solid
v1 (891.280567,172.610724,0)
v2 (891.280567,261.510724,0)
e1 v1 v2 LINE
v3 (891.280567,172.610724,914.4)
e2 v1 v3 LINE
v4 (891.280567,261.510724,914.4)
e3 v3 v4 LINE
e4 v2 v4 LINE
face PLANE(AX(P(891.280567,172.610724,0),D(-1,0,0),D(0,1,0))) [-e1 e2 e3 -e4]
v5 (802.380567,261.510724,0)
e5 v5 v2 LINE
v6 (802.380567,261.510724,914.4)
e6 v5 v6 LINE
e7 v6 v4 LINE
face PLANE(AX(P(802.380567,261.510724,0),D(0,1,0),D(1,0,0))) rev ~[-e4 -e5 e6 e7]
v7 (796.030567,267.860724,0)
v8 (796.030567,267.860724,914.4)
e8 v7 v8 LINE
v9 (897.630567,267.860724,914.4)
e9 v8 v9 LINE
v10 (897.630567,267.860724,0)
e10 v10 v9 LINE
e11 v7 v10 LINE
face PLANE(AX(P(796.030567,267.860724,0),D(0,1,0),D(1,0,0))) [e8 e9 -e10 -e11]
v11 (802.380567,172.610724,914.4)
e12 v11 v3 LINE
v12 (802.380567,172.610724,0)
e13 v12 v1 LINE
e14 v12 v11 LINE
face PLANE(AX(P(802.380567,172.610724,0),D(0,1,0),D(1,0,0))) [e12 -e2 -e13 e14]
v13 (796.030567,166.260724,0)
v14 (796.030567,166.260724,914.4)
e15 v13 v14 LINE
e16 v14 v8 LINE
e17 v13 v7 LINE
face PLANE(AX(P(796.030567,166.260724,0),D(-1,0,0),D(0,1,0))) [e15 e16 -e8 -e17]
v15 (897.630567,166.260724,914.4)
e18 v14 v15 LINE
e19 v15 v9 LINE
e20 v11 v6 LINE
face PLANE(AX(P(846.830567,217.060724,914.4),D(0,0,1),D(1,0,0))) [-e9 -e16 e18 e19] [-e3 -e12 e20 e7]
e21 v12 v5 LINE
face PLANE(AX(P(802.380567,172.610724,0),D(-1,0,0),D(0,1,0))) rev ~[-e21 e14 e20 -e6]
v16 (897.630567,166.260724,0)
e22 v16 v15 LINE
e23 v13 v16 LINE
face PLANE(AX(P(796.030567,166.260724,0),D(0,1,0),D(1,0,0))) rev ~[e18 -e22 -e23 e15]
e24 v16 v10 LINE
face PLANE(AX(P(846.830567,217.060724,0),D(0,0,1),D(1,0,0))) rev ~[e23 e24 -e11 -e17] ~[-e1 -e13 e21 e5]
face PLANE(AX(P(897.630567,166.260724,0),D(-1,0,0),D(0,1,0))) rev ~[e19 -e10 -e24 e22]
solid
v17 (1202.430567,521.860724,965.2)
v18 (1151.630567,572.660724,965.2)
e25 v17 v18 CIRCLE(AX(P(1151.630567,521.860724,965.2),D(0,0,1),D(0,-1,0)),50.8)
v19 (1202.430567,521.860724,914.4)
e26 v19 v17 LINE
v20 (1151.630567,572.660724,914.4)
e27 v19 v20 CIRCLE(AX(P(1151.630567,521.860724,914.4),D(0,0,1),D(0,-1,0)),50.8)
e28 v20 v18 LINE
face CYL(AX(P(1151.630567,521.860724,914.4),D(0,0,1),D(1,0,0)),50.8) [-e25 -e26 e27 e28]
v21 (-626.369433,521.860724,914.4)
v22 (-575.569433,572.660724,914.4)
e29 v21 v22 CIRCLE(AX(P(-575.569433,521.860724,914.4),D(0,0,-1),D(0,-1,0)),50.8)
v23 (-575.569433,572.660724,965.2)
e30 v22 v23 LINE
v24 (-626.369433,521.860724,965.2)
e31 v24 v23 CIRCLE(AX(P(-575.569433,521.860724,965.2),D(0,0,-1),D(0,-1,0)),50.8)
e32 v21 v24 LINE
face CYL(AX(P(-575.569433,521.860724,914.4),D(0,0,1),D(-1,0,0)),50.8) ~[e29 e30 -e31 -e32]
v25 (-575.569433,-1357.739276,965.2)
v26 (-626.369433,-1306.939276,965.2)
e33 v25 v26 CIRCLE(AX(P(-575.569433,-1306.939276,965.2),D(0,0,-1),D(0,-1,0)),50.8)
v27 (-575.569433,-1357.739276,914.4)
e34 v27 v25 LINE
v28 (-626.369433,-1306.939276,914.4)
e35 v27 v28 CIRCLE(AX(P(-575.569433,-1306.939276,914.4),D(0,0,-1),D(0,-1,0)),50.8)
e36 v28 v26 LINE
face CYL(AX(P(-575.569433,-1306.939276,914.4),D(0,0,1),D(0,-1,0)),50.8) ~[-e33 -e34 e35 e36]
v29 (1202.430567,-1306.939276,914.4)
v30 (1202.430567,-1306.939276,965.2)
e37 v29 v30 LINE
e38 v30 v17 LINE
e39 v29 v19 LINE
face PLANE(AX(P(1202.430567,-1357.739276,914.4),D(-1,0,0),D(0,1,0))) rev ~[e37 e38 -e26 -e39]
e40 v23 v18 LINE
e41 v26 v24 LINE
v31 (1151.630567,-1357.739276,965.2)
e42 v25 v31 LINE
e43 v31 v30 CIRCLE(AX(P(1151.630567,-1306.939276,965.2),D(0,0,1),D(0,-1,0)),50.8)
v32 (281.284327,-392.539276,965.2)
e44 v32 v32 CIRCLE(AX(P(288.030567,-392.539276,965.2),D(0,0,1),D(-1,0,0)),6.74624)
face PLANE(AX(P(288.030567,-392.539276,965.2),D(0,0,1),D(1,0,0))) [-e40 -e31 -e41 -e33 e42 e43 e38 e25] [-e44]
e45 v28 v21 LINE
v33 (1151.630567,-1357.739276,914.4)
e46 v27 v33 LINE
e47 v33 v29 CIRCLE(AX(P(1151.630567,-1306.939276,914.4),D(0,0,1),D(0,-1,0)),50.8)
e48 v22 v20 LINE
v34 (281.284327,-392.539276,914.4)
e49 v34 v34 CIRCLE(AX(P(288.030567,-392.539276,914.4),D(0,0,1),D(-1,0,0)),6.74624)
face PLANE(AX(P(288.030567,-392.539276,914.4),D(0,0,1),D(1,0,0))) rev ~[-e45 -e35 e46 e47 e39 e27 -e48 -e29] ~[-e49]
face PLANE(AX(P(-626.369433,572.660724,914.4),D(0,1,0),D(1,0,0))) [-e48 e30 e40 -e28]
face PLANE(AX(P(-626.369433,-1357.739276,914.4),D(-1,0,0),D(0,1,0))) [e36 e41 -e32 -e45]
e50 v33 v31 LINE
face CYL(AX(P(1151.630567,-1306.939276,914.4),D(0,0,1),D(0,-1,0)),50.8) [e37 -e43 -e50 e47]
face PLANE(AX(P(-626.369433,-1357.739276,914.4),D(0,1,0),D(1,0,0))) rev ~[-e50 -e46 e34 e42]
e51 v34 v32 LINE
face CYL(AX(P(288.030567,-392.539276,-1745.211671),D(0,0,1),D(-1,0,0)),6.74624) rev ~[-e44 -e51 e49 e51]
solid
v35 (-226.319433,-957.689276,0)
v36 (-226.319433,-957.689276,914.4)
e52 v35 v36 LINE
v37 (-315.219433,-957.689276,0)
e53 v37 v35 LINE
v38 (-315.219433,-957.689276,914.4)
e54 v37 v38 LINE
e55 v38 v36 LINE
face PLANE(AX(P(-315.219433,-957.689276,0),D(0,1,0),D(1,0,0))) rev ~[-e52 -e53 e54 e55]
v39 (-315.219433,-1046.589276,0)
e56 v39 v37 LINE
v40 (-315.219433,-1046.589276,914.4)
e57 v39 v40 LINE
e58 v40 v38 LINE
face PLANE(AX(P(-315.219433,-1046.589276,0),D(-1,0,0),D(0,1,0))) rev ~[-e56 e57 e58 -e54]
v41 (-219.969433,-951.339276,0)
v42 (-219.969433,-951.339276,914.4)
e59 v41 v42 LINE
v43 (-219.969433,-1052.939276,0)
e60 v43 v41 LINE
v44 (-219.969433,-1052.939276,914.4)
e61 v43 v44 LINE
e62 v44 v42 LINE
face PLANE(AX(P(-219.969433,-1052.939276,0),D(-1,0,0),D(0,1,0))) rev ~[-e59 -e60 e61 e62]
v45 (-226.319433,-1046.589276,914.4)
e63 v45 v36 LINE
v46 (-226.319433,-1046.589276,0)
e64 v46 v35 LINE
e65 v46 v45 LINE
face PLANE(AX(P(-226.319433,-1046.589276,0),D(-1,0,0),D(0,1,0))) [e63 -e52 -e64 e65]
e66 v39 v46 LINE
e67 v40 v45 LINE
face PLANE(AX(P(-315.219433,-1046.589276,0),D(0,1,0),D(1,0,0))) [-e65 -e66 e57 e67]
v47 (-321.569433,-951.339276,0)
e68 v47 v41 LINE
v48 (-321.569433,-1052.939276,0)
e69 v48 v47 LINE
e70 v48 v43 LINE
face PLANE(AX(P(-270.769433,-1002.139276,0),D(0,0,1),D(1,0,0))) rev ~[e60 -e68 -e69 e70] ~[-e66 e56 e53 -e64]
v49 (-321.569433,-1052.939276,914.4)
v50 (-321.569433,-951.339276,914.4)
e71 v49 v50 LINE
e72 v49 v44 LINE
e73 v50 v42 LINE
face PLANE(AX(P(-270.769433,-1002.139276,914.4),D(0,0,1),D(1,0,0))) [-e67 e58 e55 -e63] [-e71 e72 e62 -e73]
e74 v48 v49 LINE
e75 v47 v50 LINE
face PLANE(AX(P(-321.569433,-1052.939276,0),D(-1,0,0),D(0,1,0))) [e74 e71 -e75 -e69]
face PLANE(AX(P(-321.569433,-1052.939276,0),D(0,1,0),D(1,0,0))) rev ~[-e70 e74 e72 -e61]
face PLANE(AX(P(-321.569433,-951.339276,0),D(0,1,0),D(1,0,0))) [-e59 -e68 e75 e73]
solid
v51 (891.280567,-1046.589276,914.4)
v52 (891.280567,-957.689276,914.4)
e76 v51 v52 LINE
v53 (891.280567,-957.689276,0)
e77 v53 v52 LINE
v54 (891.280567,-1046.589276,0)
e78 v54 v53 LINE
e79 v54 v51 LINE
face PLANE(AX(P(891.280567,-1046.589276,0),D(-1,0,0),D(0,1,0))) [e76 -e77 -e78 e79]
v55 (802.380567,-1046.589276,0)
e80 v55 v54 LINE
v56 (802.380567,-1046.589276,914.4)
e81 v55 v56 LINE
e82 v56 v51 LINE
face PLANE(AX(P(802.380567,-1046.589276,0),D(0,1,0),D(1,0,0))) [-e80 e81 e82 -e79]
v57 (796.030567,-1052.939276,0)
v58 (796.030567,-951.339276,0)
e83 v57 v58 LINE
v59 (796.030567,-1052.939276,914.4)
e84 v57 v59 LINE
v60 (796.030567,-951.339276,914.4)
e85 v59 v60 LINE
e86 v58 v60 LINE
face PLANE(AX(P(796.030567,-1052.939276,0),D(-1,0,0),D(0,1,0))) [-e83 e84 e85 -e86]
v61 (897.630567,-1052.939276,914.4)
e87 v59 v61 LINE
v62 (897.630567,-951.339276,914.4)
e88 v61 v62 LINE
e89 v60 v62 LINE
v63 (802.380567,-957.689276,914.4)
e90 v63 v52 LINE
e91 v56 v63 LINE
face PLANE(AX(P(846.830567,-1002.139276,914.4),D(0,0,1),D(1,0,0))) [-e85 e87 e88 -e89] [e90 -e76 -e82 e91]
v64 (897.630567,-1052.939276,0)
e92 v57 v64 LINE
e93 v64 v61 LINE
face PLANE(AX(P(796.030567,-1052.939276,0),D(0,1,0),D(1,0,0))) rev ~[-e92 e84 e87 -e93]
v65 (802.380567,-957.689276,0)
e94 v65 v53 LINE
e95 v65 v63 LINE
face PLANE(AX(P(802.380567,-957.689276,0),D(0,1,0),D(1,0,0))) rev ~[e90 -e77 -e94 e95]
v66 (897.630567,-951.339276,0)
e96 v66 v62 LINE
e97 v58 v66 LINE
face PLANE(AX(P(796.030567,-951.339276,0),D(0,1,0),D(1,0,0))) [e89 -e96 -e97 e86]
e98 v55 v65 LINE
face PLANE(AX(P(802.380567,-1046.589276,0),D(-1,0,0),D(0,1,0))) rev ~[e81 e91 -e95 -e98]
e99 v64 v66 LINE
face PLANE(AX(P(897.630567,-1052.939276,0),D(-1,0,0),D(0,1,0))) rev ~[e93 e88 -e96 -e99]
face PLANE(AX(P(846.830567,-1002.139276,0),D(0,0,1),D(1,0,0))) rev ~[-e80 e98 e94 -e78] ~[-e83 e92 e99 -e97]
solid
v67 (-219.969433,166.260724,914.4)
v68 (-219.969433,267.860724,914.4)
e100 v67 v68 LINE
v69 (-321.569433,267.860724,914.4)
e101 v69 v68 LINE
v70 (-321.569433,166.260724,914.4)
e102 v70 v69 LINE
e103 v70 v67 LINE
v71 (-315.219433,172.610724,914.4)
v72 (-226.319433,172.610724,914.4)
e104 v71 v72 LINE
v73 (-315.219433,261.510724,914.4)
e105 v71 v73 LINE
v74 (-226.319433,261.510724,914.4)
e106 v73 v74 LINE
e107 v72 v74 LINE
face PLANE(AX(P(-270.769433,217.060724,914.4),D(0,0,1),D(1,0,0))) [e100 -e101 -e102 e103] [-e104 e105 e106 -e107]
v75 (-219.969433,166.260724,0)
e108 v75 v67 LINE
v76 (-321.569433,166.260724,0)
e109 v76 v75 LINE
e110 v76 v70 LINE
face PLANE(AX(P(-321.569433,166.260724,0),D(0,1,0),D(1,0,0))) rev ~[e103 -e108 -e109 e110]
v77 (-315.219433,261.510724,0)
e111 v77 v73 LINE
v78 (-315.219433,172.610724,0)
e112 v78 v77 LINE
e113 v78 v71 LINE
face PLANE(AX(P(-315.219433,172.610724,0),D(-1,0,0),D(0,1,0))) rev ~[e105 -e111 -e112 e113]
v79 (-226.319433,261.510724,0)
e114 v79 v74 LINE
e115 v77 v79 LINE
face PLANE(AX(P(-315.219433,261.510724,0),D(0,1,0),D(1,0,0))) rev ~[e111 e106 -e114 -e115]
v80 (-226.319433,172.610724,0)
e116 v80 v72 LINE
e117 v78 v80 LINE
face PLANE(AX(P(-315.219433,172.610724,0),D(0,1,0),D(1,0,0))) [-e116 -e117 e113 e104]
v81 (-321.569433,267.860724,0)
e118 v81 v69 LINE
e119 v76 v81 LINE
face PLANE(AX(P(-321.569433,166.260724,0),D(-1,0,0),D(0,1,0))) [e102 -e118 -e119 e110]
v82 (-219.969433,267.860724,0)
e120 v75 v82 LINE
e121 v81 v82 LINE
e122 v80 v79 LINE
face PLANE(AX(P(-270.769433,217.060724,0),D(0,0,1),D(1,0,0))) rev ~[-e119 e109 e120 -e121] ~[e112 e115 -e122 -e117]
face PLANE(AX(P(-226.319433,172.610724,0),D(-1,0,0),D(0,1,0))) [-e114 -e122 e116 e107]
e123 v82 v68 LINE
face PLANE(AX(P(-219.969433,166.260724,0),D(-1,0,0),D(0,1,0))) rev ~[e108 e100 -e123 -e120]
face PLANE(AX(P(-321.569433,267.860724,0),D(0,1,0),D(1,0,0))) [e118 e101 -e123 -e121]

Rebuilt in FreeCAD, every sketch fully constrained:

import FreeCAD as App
import Part
import Sketcher
Q = App.Units.Quantity


def edges_at(feature, points):
    """Names of the edges that pass closest to the given points."""
    edges = feature.Shape.Edges
    near = lambda p: min(range(len(edges)), key=lambda i: edges[i].distToShape(Part.Vertex(*p))[0])
    return sorted({f"Edge{near(p) + 1}" for p in points})


def add_polygon(sketch, points):
    """Adds a closed chain of lines whose ends are joined by coincident constraints."""
    first, n = sketch.GeometryCount, len(points)
    for a, b in zip(points, points[1:] + points[:1]):
        sketch.addGeometry(Part.LineSegment(App.Vector(*a, 0), App.Vector(*b, 0)), False)
    for i in range(n):
        sketch.addConstraint(Sketcher.Constraint("Coincident", first + i, 2, first + (i + 1) % n, 1))

doc = App.newDocument("Part")
body = doc.addObject("PartDesign::Body", "Body")

# Sketch on XY plane
sketch1 = body.newObject("Sketcher::SketchObject", "Sketch")
sketch1.AttachmentSupport = (doc.getObject("XY_Plane"), [""])
sketch1.MapMode = "FlatFace"
add_polygon(sketch1, [(-322, 268), (-322, 166), (-220, 166), (-220, 268)])  # lines 0-3
add_polygon(sketch1, [(-226, 173), (-315, 173), (-315, 262), (-226, 262)])  # lines 4-7
sketch1.addConstraint(Sketcher.Constraint("Vertical", 0))
sketch1.addConstraint(Sketcher.Constraint("Horizontal", 1))
sketch1.addConstraint(Sketcher.Constraint("Vertical", 2))
sketch1.addConstraint(Sketcher.Constraint("Horizontal", 3))
sketch1.addConstraint(Sketcher.Constraint("Horizontal", 4))
sketch1.addConstraint(Sketcher.Constraint("Vertical", 5))
sketch1.addConstraint(Sketcher.Constraint("Horizontal", 6))
sketch1.addConstraint(Sketcher.Constraint("Vertical", 7))
sketch1.addConstraint(Sketcher.Constraint("Equal", 3, 0))
sketch1.addConstraint(Sketcher.Constraint("Equal", 6, 5))
sketch1.addConstraint(Sketcher.Constraint("DistanceX", 1, 1, 1, 2, Q("4 in")))
sketch1.addConstraint(Sketcher.Constraint("DistanceX", 4, 2, 4, 1, Q("3.5 in")))
sketch1.addConstraint(Sketcher.Constraint("DistanceX", 0, 2, 4, 2, Q("0.25 in")))
sketch1.addConstraint(Sketcher.Constraint("DistanceY", 0, 2, 4, 2, Q("0.25 in")))
sketch1.addConstraint(Sketcher.Constraint("DistanceX", 0, 2, -1, 1, 321.569433))
sketch1.addConstraint(Sketcher.Constraint("DistanceY", -1, 1, 0, 2, 166.260724))
pad1 = body.newObject("PartDesign::Pad", "Pad")
pad1.Profile = sketch1
pad1.Length = Q("36 in")
body2 = doc.addObject("PartDesign::Body", "Body001")

# Sketch on XY plane
sketch2 = body2.newObject("Sketcher::SketchObject", "Sketch001")
sketch2.AttachmentSupport = (doc.getObject("XY_Plane001"), [""])
sketch2.MapMode = "FlatFace"
add_polygon(sketch2, [(796, 268), (796, 166), (898, 166), (898, 268)])  # lines 0-3
add_polygon(sketch2, [(891, 173), (802, 173), (802, 262), (891, 262)])  # lines 4-7
sketch2.addConstraint(Sketcher.Constraint("Vertical", 0))
sketch2.addConstraint(Sketcher.Constraint("Horizontal", 1))
sketch2.addConstraint(Sketcher.Constraint("Vertical", 2))
sketch2.addConstraint(Sketcher.Constraint("Horizontal", 3))
sketch2.addConstraint(Sketcher.Constraint("Horizontal", 4))
sketch2.addConstraint(Sketcher.Constraint("Vertical", 5))
sketch2.addConstraint(Sketcher.Constraint("Horizontal", 6))
sketch2.addConstraint(Sketcher.Constraint("Vertical", 7))
sketch2.addConstraint(Sketcher.Constraint("Equal", 3, 0))
sketch2.addConstraint(Sketcher.Constraint("Equal", 6, 5))
sketch2.addConstraint(Sketcher.Constraint("DistanceX", 1, 1, 1, 2, Q("4 in")))
sketch2.addConstraint(Sketcher.Constraint("DistanceX", 4, 2, 4, 1, Q("3.5 in")))
sketch2.addConstraint(Sketcher.Constraint("DistanceX", 0, 2, 4, 2, Q("0.25 in")))
sketch2.addConstraint(Sketcher.Constraint("DistanceY", 0, 2, 4, 2, Q("0.25 in")))
sketch2.addConstraint(Sketcher.Constraint("DistanceX", -1, 1, 0, 2, 796.030567))
sketch2.addConstraint(Sketcher.Constraint("DistanceY", -1, 1, 0, 2, 166.260724))
pad2 = body2.newObject("PartDesign::Pad", "Pad001")
pad2.Profile = sketch2
pad2.Length = Q("36 in")
body3 = doc.addObject("PartDesign::Body", "Body002")

# Sketch on XY plane
sketch3 = body3.newObject("Sketcher::SketchObject", "Sketch002")
sketch3.AttachmentSupport = (doc.getObject("XY_Plane002"), [""])
sketch3.MapMode = "FlatFace"
add_polygon(sketch3, [(-322, -951), (-322, -1053), (-220, -1053), (-220, -951)])  # lines 0-3
add_polygon(sketch3, [(-226, -1047), (-315, -1047), (-315, -958), (-226, -958)])  # lines 4-7
sketch3.addConstraint(Sketcher.Constraint("Vertical", 0))
sketch3.addConstraint(Sketcher.Constraint("Horizontal", 1))
sketch3.addConstraint(Sketcher.Constraint("Vertical", 2))
sketch3.addConstraint(Sketcher.Constraint("Horizontal", 3))
sketch3.addConstraint(Sketcher.Constraint("Horizontal", 4))
sketch3.addConstraint(Sketcher.Constraint("Vertical", 5))
sketch3.addConstraint(Sketcher.Constraint("Horizontal", 6))
sketch3.addConstraint(Sketcher.Constraint("Vertical", 7))
sketch3.addConstraint(Sketcher.Constraint("Equal", 3, 0))
sketch3.addConstraint(Sketcher.Constraint("Equal", 6, 5))
sketch3.addConstraint(Sketcher.Constraint("DistanceX", 1, 1, 1, 2, Q("4 in")))
sketch3.addConstraint(Sketcher.Constraint("DistanceX", 4, 2, 4, 1, Q("3.5 in")))
sketch3.addConstraint(Sketcher.Constraint("DistanceX", 0, 2, 4, 2, Q("0.25 in")))
sketch3.addConstraint(Sketcher.Constraint("DistanceY", 0, 2, 4, 2, Q("0.25 in")))
sketch3.addConstraint(Sketcher.Constraint("DistanceX", 0, 2, -1, 1, 321.569433))
sketch3.addConstraint(Sketcher.Constraint("DistanceY", 0, 2, -1, 1, 1052.939276))
pad3 = body3.newObject("PartDesign::Pad", "Pad002")
pad3.Profile = sketch3
pad3.Length = Q("36 in")
body4 = doc.addObject("PartDesign::Body", "Body003")

# Sketch on XY plane
sketch4 = body4.newObject("Sketcher::SketchObject", "Sketch003")
sketch4.AttachmentSupport = (doc.getObject("XY_Plane003"), [""])
sketch4.MapMode = "FlatFace"
add_polygon(sketch4, [(796, -951), (796, -1053), (898, -1053), (898, -951)])  # lines 0-3
add_polygon(sketch4, [(891, -1047), (802, -1047), (802, -958), (891, -958)])  # lines 4-7
sketch4.addConstraint(Sketcher.Constraint("Vertical", 0))
sketch4.addConstraint(Sketcher.Constraint("Horizontal", 1))
sketch4.addConstraint(Sketcher.Constraint("Vertical", 2))
sketch4.addConstraint(Sketcher.Constraint("Horizontal", 3))
sketch4.addConstraint(Sketcher.Constraint("Horizontal", 4))
sketch4.addConstraint(Sketcher.Constraint("Vertical", 5))
sketch4.addConstraint(Sketcher.Constraint("Horizontal", 6))
sketch4.addConstraint(Sketcher.Constraint("Vertical", 7))
sketch4.addConstraint(Sketcher.Constraint("Equal", 3, 0))
sketch4.addConstraint(Sketcher.Constraint("Equal", 6, 5))
sketch4.addConstraint(Sketcher.Constraint("DistanceX", 1, 1, 1, 2, Q("4 in")))
sketch4.addConstraint(Sketcher.Constraint("DistanceX", 4, 2, 4, 1, Q("3.5 in")))
sketch4.addConstraint(Sketcher.Constraint("DistanceX", 0, 2, 4, 2, Q("0.25 in")))
sketch4.addConstraint(Sketcher.Constraint("DistanceY", 0, 2, 4, 2, Q("0.25 in")))
sketch4.addConstraint(Sketcher.Constraint("DistanceX", -1, 1, 0, 2, 796.030567))
sketch4.addConstraint(Sketcher.Constraint("DistanceY", 0, 2, -1, 1, 1052.939276))
pad4 = body4.newObject("PartDesign::Pad", "Pad003")
pad4.Profile = sketch4
pad4.Length = Q("36 in")
body5 = doc.addObject("PartDesign::Body", "Body004")

# Sketch on XY plane
sketch5 = body5.newObject("Sketcher::SketchObject", "Sketch004")
sketch5.AttachmentSupport = (doc.getObject("XY_Plane004"), [""])
sketch5.MapMode = "FlatFace"
sketch5.AttachmentOffset = App.Placement(App.Vector(0, 0, 36 * 25.4), App.Rotation())
add_polygon(sketch5, [(-626, 573), (-626, -1358), (1202, -1358), (1202, 573)])  # lines 0-3
sketch5.addConstraint(Sketcher.Constraint("Vertical", 0))
sketch5.addConstraint(Sketcher.Constraint("Horizontal", 1))
sketch5.addConstraint(Sketcher.Constraint("Vertical", 2))
sketch5.addConstraint(Sketcher.Constraint("Horizontal", 3))
sketch5.addConstraint(Sketcher.Constraint("DistanceX", 1, 1, 1, 2, Q("72 in")))
sketch5.addConstraint(Sketcher.Constraint("DistanceY", 0, 2, 0, 1, Q("76 in")))
sketch5.addConstraint(Sketcher.Constraint("DistanceX", 0, 2, -1, 1, 626.369433))
sketch5.addConstraint(Sketcher.Constraint("DistanceY", 0, 2, -1, 1, 1357.739276))
pad5 = body5.newObject("PartDesign::Pad", "Pad004")
pad5.Profile = sketch5
pad5.Length = Q("2 in")
doc.recompute()

fillet = body5.newObject("PartDesign::Fillet", "Fillet")
fillet.Base = (pad5, edges_at(pad5, [(1202.431, -1357.739, 939.8), (1202.431, 572.661, 939.8)]))
fillet.Radius = Q("2 in")
doc.recompute()

fillet2 = body5.newObject("PartDesign::Fillet", "Fillet001")
fillet2.Base = (fillet, edges_at(fillet, [(-626.369, 572.661, 939.8), (-626.369, -1357.739, 939.8)]))
fillet2.Radius = Q("2 in")

# Sketch on XY plane
sketch6 = body5.newObject("Sketcher::SketchObject", "Sketch005")
sketch6.AttachmentSupport = (doc.getObject("XY_Plane004"), [""])
sketch6.MapMode = "FlatFace"
sketch6.AttachmentOffset = App.Placement(App.Vector(0, 0, 36 * 25.4), App.Rotation())
sketch6.addGeometry(Part.Circle(App.Vector(288, -393, 0), App.Vector(0, 0, 1), 7), False)
sketch6.addConstraint(Sketcher.Constraint("Diameter", 0, Q("0.5312 in")))
sketch6.addConstraint(Sketcher.Constraint("DistanceX", -1, 1, 0, 3, 288.030567))
sketch6.addConstraint(Sketcher.Constraint("DistanceY", 0, 3, -1, 1, 392.539276))
doc.recompute()
hole = body5.newObject("PartDesign::Hole", "Hole")
hole.Profile = sketch6
hole.ThreadType = "None"
hole.Diameter = Q("0.5312 in")
hole.DepthType = "ThroughAll"
hole.Reversed = True

doc.recompute()
